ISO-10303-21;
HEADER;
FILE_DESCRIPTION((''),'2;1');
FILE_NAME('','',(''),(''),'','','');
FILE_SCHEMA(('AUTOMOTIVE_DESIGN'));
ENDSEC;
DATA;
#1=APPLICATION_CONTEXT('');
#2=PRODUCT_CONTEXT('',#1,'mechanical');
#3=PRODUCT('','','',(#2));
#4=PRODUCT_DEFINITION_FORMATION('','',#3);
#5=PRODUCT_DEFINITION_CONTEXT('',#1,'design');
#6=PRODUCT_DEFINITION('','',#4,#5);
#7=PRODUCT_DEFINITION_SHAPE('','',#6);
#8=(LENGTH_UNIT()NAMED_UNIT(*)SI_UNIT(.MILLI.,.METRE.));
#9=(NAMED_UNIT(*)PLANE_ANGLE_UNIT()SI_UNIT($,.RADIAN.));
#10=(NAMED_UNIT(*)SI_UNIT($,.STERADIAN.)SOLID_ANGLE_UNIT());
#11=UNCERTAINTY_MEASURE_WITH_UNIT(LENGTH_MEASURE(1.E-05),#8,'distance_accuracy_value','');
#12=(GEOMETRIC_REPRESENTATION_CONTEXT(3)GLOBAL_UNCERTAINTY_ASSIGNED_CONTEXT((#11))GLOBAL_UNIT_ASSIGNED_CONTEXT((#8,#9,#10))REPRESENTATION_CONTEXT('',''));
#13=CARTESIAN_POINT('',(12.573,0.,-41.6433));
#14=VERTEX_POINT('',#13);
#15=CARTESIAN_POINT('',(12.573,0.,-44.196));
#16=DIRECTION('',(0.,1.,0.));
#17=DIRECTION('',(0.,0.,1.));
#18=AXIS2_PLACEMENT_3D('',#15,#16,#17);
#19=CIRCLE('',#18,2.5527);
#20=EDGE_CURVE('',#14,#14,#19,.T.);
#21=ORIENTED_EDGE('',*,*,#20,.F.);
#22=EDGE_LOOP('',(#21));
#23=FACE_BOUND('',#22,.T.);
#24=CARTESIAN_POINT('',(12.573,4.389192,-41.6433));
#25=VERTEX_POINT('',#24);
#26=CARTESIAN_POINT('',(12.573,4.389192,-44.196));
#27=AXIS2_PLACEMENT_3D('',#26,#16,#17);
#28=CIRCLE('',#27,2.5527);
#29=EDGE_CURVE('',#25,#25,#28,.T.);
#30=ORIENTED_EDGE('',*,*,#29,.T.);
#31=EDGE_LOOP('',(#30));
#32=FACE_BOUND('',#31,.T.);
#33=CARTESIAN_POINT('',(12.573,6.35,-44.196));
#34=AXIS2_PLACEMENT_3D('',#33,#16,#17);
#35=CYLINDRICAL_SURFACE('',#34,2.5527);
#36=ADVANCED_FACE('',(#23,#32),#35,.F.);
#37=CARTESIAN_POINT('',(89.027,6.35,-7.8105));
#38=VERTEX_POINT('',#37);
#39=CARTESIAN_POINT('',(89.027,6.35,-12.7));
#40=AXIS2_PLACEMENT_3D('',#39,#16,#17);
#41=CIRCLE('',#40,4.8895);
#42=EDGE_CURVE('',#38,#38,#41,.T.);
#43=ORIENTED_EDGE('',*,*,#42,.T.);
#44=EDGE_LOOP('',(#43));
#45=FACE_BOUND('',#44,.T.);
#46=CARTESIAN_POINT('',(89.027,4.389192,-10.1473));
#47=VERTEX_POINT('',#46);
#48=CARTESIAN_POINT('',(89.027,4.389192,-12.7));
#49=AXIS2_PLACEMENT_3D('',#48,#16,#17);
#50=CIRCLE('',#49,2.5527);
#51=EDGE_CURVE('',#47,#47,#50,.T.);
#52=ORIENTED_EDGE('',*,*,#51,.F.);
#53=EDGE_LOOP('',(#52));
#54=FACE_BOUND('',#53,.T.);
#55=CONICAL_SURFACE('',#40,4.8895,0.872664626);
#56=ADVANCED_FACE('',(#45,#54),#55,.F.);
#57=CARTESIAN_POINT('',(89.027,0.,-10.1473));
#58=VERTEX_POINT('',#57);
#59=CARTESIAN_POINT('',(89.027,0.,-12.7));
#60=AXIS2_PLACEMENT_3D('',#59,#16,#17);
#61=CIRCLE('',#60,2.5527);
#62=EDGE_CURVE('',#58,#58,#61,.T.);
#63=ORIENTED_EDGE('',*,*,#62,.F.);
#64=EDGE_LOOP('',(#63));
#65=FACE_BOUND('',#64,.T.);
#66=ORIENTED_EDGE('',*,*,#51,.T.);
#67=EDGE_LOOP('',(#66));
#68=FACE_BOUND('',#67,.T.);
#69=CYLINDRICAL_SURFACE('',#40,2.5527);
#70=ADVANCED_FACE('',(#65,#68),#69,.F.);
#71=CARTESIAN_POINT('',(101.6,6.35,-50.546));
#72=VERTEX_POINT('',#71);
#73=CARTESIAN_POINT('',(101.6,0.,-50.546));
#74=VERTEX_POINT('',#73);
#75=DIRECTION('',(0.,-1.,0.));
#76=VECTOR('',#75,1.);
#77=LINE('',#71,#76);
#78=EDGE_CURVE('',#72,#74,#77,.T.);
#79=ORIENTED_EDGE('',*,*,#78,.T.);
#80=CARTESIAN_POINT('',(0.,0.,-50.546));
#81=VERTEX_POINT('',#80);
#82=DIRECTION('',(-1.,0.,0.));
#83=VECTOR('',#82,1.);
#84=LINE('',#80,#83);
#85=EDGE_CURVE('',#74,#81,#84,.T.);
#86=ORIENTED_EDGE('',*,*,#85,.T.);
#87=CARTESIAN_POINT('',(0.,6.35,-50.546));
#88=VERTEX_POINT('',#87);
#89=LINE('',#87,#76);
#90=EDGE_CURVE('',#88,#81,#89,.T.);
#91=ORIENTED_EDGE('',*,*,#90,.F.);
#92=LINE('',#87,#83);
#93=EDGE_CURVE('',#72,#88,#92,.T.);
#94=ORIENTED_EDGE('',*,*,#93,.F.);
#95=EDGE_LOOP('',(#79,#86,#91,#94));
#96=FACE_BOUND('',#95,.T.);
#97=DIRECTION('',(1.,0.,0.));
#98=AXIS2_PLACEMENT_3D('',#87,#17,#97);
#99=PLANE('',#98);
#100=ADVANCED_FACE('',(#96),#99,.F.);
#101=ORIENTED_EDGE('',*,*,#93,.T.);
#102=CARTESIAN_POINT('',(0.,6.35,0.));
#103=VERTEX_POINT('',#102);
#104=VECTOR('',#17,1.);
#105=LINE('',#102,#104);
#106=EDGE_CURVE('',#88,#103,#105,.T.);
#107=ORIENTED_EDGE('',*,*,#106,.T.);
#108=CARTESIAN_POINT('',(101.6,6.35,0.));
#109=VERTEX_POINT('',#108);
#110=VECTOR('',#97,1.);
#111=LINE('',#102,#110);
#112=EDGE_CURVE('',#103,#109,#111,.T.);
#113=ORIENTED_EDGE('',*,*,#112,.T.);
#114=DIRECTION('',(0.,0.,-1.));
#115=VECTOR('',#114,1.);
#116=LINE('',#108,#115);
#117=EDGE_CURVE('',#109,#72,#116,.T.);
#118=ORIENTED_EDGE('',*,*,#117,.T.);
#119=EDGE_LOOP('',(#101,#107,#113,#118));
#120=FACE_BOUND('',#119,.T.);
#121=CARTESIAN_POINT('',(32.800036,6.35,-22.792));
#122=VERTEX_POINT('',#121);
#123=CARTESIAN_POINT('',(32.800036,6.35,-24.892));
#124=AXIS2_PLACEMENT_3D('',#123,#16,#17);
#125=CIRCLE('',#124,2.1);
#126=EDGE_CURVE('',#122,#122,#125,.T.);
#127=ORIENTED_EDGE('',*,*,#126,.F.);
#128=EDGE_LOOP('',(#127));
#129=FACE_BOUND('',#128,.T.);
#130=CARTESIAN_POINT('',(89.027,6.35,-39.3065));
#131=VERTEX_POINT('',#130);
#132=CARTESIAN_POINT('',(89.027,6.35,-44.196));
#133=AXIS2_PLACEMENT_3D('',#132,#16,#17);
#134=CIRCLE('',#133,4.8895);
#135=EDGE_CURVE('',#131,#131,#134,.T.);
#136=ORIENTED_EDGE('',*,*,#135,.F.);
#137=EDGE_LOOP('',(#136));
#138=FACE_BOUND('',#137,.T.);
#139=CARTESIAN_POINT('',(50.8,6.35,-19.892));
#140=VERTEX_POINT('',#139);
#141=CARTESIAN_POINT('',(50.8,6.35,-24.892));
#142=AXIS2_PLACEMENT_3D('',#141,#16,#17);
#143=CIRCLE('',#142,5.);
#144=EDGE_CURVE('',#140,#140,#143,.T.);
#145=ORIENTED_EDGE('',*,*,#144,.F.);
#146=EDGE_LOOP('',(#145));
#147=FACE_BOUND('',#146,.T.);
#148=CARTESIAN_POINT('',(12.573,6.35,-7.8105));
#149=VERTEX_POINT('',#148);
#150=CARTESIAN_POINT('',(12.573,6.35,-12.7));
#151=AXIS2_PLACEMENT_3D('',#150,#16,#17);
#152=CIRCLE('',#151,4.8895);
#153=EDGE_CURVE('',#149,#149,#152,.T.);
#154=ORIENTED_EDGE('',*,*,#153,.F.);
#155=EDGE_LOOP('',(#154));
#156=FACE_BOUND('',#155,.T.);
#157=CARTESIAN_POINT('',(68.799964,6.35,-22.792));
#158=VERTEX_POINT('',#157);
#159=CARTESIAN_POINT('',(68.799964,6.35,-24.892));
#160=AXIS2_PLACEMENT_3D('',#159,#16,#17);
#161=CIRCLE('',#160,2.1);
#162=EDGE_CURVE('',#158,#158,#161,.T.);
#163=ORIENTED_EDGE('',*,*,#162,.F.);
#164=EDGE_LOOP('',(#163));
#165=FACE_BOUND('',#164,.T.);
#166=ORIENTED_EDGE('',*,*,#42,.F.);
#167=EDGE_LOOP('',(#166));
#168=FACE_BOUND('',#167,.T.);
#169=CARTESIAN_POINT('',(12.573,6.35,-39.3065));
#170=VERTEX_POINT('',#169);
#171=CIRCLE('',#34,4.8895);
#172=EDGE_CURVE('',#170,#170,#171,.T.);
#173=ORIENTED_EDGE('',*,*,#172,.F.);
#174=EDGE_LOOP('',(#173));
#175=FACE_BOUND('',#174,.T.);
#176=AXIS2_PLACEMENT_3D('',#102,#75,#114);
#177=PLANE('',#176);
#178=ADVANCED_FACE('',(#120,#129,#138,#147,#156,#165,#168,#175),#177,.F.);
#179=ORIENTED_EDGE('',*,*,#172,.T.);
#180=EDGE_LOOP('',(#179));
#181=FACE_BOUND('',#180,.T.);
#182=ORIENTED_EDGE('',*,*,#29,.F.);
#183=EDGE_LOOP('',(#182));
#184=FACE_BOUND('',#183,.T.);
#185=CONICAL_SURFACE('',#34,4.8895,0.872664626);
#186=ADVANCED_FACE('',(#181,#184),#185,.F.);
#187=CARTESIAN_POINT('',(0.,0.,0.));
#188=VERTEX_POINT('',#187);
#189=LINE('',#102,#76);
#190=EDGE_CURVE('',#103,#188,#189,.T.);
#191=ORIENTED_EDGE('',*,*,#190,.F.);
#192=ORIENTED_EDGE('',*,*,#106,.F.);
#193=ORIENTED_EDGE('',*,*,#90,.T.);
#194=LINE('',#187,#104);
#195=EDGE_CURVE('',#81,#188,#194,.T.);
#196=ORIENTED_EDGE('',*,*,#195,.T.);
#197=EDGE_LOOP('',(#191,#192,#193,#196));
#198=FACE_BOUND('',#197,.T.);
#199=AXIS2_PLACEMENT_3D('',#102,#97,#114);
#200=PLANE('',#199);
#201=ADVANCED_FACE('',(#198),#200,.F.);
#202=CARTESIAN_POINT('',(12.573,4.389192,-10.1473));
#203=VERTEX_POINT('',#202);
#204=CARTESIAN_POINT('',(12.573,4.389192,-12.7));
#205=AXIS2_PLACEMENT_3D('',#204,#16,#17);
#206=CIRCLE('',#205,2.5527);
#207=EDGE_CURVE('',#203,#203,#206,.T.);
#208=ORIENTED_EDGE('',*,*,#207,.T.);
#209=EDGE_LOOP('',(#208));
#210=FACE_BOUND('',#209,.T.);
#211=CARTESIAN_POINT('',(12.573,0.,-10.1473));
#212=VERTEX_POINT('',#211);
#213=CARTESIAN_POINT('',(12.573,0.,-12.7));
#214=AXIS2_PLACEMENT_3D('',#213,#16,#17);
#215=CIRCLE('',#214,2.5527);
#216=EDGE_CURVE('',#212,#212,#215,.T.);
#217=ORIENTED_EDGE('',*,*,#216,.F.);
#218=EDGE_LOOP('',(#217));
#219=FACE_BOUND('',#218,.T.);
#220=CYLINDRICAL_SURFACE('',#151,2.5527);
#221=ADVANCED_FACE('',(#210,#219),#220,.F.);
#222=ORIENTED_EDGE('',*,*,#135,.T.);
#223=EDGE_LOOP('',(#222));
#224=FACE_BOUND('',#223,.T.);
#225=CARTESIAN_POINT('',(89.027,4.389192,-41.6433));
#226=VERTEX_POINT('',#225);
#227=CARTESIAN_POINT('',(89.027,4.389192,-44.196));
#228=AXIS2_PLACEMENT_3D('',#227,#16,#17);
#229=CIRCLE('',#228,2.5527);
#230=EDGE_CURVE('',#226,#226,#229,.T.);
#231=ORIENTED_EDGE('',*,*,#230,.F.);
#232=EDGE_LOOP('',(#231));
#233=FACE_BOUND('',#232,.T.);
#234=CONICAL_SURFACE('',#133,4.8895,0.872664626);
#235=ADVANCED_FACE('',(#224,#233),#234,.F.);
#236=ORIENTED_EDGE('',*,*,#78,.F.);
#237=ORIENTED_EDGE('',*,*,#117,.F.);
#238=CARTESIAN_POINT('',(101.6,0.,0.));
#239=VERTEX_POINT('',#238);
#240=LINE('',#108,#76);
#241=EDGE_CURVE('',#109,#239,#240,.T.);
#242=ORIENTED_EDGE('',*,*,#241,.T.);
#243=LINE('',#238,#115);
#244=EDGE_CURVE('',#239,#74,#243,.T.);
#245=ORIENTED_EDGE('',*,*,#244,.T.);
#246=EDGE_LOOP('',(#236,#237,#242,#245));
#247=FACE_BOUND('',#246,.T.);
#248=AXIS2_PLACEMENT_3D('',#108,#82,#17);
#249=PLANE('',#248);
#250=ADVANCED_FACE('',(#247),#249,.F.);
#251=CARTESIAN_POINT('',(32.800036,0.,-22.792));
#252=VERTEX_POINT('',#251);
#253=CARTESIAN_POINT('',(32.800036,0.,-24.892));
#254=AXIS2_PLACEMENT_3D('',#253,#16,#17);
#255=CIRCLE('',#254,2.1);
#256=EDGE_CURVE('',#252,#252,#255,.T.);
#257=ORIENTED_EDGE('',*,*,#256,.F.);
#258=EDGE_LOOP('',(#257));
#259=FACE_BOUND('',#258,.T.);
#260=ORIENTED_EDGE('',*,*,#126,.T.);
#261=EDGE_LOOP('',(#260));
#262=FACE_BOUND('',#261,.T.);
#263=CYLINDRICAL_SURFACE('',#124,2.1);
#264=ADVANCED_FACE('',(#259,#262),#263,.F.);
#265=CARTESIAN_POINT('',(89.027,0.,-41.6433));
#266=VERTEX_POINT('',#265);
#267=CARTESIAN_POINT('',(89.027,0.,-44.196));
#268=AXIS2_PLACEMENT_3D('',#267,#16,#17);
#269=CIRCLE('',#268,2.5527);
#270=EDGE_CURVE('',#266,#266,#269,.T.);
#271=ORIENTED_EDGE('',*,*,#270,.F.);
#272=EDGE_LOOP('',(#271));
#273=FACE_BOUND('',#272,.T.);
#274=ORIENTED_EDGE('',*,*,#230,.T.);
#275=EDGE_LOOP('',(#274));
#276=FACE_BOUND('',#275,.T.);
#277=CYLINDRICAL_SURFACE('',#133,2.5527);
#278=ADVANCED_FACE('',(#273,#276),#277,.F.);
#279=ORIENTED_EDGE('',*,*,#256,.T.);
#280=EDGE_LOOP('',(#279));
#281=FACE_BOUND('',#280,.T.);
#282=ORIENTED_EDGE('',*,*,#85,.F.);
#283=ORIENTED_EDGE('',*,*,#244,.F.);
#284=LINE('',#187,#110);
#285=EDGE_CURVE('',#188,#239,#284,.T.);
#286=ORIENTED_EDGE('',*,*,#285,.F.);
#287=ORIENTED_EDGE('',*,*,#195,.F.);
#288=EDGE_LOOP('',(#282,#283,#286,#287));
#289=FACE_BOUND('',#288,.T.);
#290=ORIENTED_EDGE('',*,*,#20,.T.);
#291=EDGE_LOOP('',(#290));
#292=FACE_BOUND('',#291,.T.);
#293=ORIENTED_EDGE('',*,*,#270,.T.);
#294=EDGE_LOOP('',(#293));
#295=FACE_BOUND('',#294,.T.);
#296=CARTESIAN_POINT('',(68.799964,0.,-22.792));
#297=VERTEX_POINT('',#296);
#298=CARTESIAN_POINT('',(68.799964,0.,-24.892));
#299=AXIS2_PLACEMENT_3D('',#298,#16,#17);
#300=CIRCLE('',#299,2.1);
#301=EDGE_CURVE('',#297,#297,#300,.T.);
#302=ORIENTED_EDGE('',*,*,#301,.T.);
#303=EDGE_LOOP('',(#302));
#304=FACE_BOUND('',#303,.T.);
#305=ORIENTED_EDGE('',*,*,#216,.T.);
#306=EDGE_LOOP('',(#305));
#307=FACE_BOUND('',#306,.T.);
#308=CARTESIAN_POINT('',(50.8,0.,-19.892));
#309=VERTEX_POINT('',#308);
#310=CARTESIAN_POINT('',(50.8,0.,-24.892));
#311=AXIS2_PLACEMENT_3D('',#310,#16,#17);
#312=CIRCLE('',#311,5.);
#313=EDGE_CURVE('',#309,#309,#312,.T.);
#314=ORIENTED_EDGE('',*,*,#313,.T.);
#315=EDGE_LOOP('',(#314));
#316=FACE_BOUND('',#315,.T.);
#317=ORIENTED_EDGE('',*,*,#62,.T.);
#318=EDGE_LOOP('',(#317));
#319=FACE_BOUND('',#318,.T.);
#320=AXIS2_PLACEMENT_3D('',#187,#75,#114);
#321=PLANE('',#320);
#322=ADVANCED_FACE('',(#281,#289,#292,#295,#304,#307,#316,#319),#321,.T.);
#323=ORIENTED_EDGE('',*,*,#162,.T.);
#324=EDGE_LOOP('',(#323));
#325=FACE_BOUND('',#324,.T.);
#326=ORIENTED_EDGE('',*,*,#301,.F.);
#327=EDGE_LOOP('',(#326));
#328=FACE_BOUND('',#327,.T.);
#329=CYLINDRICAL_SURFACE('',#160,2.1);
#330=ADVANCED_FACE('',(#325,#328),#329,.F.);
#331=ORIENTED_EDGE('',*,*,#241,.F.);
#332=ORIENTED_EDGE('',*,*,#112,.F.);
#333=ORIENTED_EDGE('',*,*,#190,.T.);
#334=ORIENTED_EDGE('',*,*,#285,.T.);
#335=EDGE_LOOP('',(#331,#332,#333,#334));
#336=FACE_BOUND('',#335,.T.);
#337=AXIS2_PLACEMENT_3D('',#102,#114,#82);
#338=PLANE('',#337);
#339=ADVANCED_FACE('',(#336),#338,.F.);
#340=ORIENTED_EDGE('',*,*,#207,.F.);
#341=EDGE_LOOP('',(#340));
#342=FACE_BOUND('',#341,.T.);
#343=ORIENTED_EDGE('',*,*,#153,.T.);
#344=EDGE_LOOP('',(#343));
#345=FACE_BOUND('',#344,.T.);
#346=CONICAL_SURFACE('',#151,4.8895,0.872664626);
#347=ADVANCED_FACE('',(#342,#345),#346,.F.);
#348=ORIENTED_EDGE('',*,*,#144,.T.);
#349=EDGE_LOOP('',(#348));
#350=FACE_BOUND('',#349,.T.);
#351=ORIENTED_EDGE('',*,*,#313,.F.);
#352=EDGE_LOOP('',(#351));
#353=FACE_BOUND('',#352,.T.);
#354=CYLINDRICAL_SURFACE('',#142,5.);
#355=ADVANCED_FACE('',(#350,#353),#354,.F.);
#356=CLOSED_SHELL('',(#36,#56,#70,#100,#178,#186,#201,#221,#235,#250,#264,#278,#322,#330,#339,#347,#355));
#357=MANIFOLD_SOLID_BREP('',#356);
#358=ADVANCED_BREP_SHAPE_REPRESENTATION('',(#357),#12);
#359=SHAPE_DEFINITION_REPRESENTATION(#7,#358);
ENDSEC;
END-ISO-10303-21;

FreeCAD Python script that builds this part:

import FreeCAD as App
import Part
import Sketcher

V = App.Vector
Q = App.Units.Quantity

doc = App.newDocument("Part")
body = doc.addObject("PartDesign::Body", "Body")

# Sketch on XZ plane
sketch1 = body.newObject("Sketcher::SketchObject", "Sketch")
sketch1.AttachmentSupport = (doc.getObject("XZ_Plane"), [""])
sketch1.MapMode = "FlatFace"
sketch1.addGeometry([
    Part.LineSegment(V(0, -51, 0), V(0, 0, 0)),
    Part.LineSegment(V(0, 0, 0), V(102, 0, 0)),
    Part.LineSegment(V(102, 0, 0), V(102, -51, 0)),
    Part.LineSegment(V(102, -51, 0), V(0, -51, 0)),
], False)
sketch1.addConstraint([
    Sketcher.Constraint("Coincident", 0, 2, 1, 1),
    Sketcher.Constraint("Coincident", 1, 2, 2, 1),
    Sketcher.Constraint("Coincident", 2, 2, 3, 1),
    Sketcher.Constraint("Coincident", 3, 2, 0, 1),
    Sketcher.Constraint("Vertical", 0),
    Sketcher.Constraint("Horizontal", 1),
    Sketcher.Constraint("Vertical", 2),
    Sketcher.Constraint("Horizontal", 3),
    Sketcher.Constraint("Coincident", 0, 2, -1, 1),
    Sketcher.Constraint("DistanceX", 1, 1, 1, 2, Q("4 in")),
    Sketcher.Constraint("DistanceY", 0, 1, 0, 2, Q("1.99 in")),
])
pad1 = body.newObject("PartDesign::Pad", "Pad")
pad1.Profile = sketch1
pad1.Length = Q("0.25 in")
pad1.Reversed = True

# Sketch on XZ plane
sketch2 = body.newObject("Sketcher::SketchObject", "Sketch001")
sketch2.AttachmentSupport = (doc.getObject("XZ_Plane"), [""])
sketch2.MapMode = "FlatFace"
sketch2.AttachmentOffset = App.Placement(V(0, 0, -0.25 * 25.4), App.Rotation())
sketch2.addGeometry([
    Part.Circle(V(32.8, -24.9, 0), V(0, 0, 1), 2.1),
    Part.Circle(V(68.8, -24.9, 0), V(0, 0, 1), 2.1),
], False)
sketch2.addConstraint([
    Sketcher.Constraint("Equal", 0, 1),
    Sketcher.Constraint("Horizontal", 0, 3, 1, 3),
    Sketcher.Constraint("Diameter", 0, Q("4.2 mm")),
    Sketcher.Constraint("DistanceY", 0, 3, -1, 1, Q("0.98 in")),
    Sketcher.Constraint("DistanceX", 0, 3, 1, 3, Q("35.999928 mm")),
    Sketcher.Constraint("DistanceX", -1, 1, 0, 3, Q("32.800036 mm")),
])
doc.recompute()
hole = body.newObject("PartDesign::Hole", "Hole")
hole.Profile = sketch2
hole.ThreadType = "None"
hole.Diameter = 4.2
hole.DepthType = "ThroughAll"
hole.Reversed = True

# Sketch on XZ plane
sketch3 = body.newObject("Sketcher::SketchObject", "Sketch002")
sketch3.AttachmentSupport = (doc.getObject("XZ_Plane"), [""])
sketch3.MapMode = "FlatFace"
sketch3.AttachmentOffset = App.Placement(V(0, 0, -0.25 * 25.4), App.Rotation())
sketch3.addGeometry(Part.Circle(V(51, -25, 0), V(0, 0, 1), 5), False)
sketch3.addConstraint([
    Sketcher.Constraint("DistanceX", -1, 1, 0, 3, Q("2 in")),
    Sketcher.Constraint("Diameter", 0, Q("10 mm")),
    Sketcher.Constraint("DistanceY", 0, 3, -1, 1, Q("0.98 in")),
])
doc.recompute()
hole2 = body.newObject("PartDesign::Hole", "Hole001")
hole2.Profile = sketch3
hole2.ThreadType = "None"
hole2.Diameter = 10
hole2.DepthType = "ThroughAll"
hole2.Reversed = True

# Sketch on XZ plane
sketch4 = body.newObject("Sketcher::SketchObject", "Sketch003")
sketch4.AttachmentSupport = (doc.getObject("XZ_Plane"), [""])
sketch4.MapMode = "FlatFace"
sketch4.AttachmentOffset = App.Placement(V(0, 0, -0.25 * 25.4), App.Rotation())
sketch4.addGeometry([
    Part.Circle(V(12.6, -44.2, 0), V(0, 0, 1), 2.6),
    Part.Circle(V(89, -12.7, 0), V(0, 0, 1), 2.6),
    Part.Circle(V(12.6, -12.7, 0), V(0, 0, 1), 2.6),
    Part.Circle(V(89, -44.2, 0), V(0, 0, 1), 2.6),
], False)
sketch4.addConstraint([
    Sketcher.Constraint("Equal", 0, 1),
    Sketcher.Constraint("Equal", 1, 2),
    Sketcher.Constraint("Equal", 2, 3),
    Sketcher.Constraint("Horizontal", 1, 3, 2, 3),
    Sketcher.Constraint("Horizontal", 0, 3, 3, 3),
    Sketcher.Constraint("Vertical", 0, 3, 2, 3),
    Sketcher.Constraint("Vertical", 1, 3, 3, 3),
    Sketcher.Constraint("Diameter", 0, Q("0.201 in")),
    Sketcher.Constraint("DistanceY", 1, 3, -1, 1, Q("0.5 in")),
    Sketcher.Constraint("DistanceY", 0, 3, -1, 1, Q("1.74 in")),
    Sketcher.Constraint("DistanceX", 0, 3, 1, 3, Q("3.01 in")),
    Sketcher.Constraint("DistanceX", -1, 1, 0, 3, Q("0.495 in")),
])
doc.recompute()
hole3 = body.newObject("PartDesign::Hole", "Hole002")
hole3.Profile = sketch4
hole3.ThreadType = "None"
hole3.Diameter = Q("0.201 in")
hole3.DepthType = "ThroughAll"
hole3.HoleCutType = "Countersink"
hole3.HoleCutDiameter = Q("0.385 in")
hole3.HoleCutCountersinkAngle = 100
hole3.Reversed = True

doc.recompute()
